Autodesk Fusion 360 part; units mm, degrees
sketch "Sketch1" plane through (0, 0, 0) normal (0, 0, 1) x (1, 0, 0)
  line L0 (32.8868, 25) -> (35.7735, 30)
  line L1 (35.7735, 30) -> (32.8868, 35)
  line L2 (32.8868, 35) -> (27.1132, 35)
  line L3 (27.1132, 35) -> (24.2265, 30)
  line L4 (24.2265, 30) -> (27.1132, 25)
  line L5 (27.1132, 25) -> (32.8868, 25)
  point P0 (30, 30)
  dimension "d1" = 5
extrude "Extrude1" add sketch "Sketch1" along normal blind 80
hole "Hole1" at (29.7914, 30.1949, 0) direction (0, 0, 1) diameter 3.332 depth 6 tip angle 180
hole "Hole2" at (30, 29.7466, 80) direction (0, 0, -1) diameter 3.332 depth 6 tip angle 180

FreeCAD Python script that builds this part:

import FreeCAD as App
import Part
import Sketcher
from FreeCAD import Vector
Q = App.Units.Quantity


def add_polygon(sketch, points):
    """Adds a closed chain of lines whose ends are joined by coincident constraints."""
    first, n = sketch.GeometryCount, len(points)
    for a, b in zip(points, points[1:] + points[:1]):
        sketch.addGeometry(Part.LineSegment(App.Vector(*a, 0), App.Vector(*b, 0)), False)
    for i in range(n):
        sketch.addConstraint(Sketcher.Constraint("Coincident", first + i, 2, first + (i + 1) % n, 1))

doc = App.newDocument("Part")
body = doc.addObject("PartDesign::Body", "Body")

sketch1 = body.newObject("Sketcher::SketchObject", "Sketch")
sketch1.AttachmentSupport = (doc.getObject("XY_Plane"), [""])
sketch1.MapMode = "FlatFace"
add_polygon(sketch1, [(27.1132, 25), (32.8868, 25), (35.7735, 30), (32.8868, 35), (27.1132, 35), (24.2265, 30)])
sketch1.addConstraint(Sketcher.Constraint("Horizontal", 0))
sketch1.addConstraint(Sketcher.Constraint("Horizontal", 3))
sketch1.addConstraint(Sketcher.Constraint("Parallel", 1, 4))
sketch1.addConstraint(Sketcher.Constraint("Parallel", 2, 5))
sketch1.addConstraint(Sketcher.Constraint("Horizontal", 1, 2, 4, 2))
sketch1.addConstraint(Sketcher.Constraint("Vertical", 0, 2, 2, 2))
sketch1.addConstraint(Sketcher.Constraint("Vertical", 3, 2, 5, 2))
sketch1.addConstraint(Sketcher.Constraint("DistanceY", 0, 2, 1, 2, Q("5 mm")))
sketch1.addConstraint(Sketcher.Constraint("Angle", 1, Q("60.0004 deg")))
sketch1.addConstraint(Sketcher.Constraint("DistanceY", -1, 1, 0, 2, Q("25 mm")))
sketch1.addConstraint(Sketcher.Constraint("DistanceX", 0, 1, 0, 2, Q("5.7736 mm")))
sketch1.addConstraint(Sketcher.Constraint("DistanceX", -1, 1, 0, 2, Q("32.8868 mm")))
pad1 = body.newObject("PartDesign::Pad", "Pad")
pad1.Profile = sketch1
pad1.Length = 80

sketch2 = body.newObject("Sketcher::SketchObject", "Sketch001")
sketch2.AttachmentSupport = (doc.getObject("XY_Plane"), [""])
sketch2.MapMode = "FlatFace"
sketch2.addGeometry(Part.Circle(Vector(29.7914, 30.1949, 0), Vector(0, 0, 1), 1.666), False)
sketch2.addConstraint(Sketcher.Constraint("Diameter", 0, Q("3.332 mm")))
sketch2.addConstraint(Sketcher.Constraint("DistanceY", -1, 1, 0, 3, Q("30.195 mm")))
sketch2.addConstraint(Sketcher.Constraint("DistanceX", -1, 1, 0, 3, Q("29.7914 mm")))
doc.recompute()
hole = body.newObject("PartDesign::Hole", "Hole")
hole.Profile = sketch2
hole.ThreadType = "None"
hole.Diameter = 3.332
hole.DepthType = "Dimension"
hole.Depth = 6
hole.DrillPoint = "Flat"
hole.Reversed = True

sketch3 = body.newObject("Sketcher::SketchObject", "Sketch002")
sketch3.AttachmentSupport = (doc.getObject("XY_Plane"), [""])
sketch3.MapMode = "FlatFace"
sketch3.AttachmentOffset = App.Placement(Vector(0, 0, 80), App.Rotation())
sketch3.addGeometry(Part.Circle(Vector(30, 29.7466, 0), Vector(0, 0, 1), 1.666), False)
sketch3.addConstraint(Sketcher.Constraint("Diameter", 0, Q("3.332 mm")))
sketch3.addConstraint(Sketcher.Constraint("DistanceX", -1, 1, 0, 3, Q("30 mm")))
sketch3.addConstraint(Sketcher.Constraint("DistanceY", -1, 1, 0, 3, Q("29.7466 mm")))
doc.recompute()
hole2 = body.newObject("PartDesign::Hole", "Hole001")
hole2.Profile = sketch3
hole2.ThreadType = "None"
hole2.Diameter = 3.332
hole2.DepthType = "Dimension"
hole2.Depth = 6
hole2.DrillPoint = "Flat"

doc.recompute()
